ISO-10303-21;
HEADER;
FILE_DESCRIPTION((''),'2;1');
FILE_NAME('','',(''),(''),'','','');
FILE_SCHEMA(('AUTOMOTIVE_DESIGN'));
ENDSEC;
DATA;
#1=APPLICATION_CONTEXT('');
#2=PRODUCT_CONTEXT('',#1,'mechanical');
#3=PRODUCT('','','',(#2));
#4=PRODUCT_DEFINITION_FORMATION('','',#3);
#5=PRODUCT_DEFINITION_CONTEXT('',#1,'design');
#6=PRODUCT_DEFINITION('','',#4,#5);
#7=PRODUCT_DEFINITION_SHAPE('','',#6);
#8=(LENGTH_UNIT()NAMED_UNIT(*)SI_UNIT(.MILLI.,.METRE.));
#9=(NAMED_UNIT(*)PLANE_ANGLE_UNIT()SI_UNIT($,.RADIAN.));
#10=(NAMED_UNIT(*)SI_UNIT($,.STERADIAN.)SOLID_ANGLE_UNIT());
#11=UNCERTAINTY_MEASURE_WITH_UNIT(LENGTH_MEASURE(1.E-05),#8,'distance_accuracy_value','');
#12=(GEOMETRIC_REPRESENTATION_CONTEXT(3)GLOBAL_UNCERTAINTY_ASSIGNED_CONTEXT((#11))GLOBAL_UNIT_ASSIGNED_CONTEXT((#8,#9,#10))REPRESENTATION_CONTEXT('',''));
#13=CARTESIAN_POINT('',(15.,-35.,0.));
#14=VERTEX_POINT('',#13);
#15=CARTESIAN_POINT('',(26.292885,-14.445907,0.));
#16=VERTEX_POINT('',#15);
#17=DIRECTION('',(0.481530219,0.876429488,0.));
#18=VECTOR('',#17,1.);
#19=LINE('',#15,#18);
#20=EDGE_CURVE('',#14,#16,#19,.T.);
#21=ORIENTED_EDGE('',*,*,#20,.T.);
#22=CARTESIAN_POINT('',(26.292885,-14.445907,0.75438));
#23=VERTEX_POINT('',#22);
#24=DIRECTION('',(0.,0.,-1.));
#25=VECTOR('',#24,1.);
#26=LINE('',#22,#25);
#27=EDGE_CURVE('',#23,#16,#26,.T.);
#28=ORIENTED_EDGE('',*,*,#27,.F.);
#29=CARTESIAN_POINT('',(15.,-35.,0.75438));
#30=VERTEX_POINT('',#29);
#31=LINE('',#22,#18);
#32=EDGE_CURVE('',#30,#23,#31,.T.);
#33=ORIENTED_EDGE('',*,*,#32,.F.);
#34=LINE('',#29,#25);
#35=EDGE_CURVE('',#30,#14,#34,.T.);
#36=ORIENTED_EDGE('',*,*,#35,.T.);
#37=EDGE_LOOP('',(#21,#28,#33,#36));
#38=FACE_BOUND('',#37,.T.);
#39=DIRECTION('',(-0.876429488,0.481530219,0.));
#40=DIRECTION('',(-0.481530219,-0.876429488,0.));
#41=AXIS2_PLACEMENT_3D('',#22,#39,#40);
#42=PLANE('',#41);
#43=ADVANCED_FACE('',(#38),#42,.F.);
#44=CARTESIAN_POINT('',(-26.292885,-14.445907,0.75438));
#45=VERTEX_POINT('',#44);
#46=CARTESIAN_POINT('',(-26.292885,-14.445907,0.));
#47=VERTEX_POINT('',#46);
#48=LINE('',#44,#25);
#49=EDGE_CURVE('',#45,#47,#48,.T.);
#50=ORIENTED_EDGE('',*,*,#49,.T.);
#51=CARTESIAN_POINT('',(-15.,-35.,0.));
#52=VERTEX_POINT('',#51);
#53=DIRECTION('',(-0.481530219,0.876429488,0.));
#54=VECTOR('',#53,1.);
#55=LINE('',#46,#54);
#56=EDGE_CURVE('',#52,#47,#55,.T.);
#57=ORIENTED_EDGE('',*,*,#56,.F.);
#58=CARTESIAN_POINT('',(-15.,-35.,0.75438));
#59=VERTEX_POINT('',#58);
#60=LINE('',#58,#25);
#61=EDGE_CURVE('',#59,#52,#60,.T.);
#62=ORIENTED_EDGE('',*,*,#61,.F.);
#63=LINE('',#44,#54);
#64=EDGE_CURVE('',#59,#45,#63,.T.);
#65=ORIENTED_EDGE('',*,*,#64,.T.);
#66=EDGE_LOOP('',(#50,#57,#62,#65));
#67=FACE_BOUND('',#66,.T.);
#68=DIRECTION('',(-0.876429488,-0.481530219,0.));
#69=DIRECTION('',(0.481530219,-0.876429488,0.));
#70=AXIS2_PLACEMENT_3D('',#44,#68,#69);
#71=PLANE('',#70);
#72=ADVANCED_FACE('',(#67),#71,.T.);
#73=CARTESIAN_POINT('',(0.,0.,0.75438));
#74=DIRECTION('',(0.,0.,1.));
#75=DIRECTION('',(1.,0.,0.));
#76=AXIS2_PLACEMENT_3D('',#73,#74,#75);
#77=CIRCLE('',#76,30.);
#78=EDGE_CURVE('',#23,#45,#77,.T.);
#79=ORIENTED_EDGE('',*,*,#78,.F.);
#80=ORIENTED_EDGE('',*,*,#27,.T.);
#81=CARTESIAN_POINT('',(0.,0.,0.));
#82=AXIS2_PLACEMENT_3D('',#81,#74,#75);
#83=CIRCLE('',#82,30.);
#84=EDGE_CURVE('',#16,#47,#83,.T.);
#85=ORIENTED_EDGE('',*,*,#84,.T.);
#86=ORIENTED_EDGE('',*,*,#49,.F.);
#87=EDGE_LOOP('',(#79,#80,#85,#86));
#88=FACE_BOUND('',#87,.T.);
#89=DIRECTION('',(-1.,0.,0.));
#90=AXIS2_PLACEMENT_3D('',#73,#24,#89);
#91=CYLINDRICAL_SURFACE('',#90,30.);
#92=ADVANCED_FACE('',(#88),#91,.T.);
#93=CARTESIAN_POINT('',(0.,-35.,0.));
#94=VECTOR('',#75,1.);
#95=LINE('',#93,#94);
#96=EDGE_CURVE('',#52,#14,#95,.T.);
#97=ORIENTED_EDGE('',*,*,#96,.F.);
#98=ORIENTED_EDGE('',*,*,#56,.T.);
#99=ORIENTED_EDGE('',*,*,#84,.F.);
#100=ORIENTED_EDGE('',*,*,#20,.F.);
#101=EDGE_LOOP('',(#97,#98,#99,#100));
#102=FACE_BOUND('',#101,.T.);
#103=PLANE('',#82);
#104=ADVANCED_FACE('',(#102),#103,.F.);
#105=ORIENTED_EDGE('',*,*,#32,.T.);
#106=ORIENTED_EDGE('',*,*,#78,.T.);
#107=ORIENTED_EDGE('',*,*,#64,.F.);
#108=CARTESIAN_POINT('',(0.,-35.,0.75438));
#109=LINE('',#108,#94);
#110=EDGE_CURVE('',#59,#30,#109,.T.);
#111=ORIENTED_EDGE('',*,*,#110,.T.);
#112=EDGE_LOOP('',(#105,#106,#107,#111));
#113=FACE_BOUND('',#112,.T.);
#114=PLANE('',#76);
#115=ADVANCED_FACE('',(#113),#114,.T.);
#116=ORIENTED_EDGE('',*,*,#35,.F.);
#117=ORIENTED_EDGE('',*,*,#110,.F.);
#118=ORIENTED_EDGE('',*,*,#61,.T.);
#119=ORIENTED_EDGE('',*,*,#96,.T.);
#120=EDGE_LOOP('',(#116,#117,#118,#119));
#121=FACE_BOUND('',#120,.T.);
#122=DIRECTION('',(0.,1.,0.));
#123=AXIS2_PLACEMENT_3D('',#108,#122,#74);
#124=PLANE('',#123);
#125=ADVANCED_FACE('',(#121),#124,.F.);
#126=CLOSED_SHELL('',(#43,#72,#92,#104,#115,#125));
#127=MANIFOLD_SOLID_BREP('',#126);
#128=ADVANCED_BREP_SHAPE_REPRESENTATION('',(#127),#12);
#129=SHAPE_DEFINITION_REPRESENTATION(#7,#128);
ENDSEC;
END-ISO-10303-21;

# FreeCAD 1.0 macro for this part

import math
import FreeCAD as App
import Part
import Sketcher
from FreeCAD import Vector
Q = App.Units.Quantity

doc = App.newDocument("Part")
body = doc.addObject("PartDesign::Body", "Body")

sketch1 = doc.addObject("Sketcher::SketchObject", "Sketch")
body.addObject(sketch1)
sketch1.AttachmentSupport = (doc.XY_Plane, [""])
sketch1.MapMode = "FlatFace"
sketch1.addGeometry([
    Part.LineSegment(Vector(-26.292885, -14.445907, 0), Vector(-15, -35, 0)),
    Part.LineSegment(Vector(-15, -35, 0), Vector(15, -35, 0)),
    Part.LineSegment(Vector(15, -35, 0), Vector(26.292885, -14.445907, 0)),
    Part.ArcOfCircle(Part.Circle(Vector(0, 0, 0), Vector(0, 0, 1), 30), math.radians(-28.785391), math.radians(208.785391)),
], False)
sketch1.addConstraint([
    Sketcher.Constraint("Coincident", 0, 2, 1, 1),
    Sketcher.Constraint("Coincident", 1, 2, 2, 1),
    Sketcher.Constraint("Tangent", 2, 2, 3, 1),
    Sketcher.Constraint("Tangent", 3, 2, 0, 1),
    Sketcher.Constraint("Horizontal", 1),
    Sketcher.Constraint("Coincident", 3, 3, -1, 1),
    Sketcher.Constraint("Horizontal", 2, 2, 3, 2),
    Sketcher.Constraint("Radius", 3, Q("30 mm")),
    Sketcher.Constraint("DistanceX", 1, 1, 1, 2, Q("30 mm")),
    Sketcher.Constraint("DistanceY", 0, 2, -1, 1, Q("35 mm")),
])
pad1 = doc.addObject("PartDesign::Pad", "Pad")
body.addObject(pad1)
pad1.Profile = sketch1
pad1.Length = 0.75438

doc.recompute()
